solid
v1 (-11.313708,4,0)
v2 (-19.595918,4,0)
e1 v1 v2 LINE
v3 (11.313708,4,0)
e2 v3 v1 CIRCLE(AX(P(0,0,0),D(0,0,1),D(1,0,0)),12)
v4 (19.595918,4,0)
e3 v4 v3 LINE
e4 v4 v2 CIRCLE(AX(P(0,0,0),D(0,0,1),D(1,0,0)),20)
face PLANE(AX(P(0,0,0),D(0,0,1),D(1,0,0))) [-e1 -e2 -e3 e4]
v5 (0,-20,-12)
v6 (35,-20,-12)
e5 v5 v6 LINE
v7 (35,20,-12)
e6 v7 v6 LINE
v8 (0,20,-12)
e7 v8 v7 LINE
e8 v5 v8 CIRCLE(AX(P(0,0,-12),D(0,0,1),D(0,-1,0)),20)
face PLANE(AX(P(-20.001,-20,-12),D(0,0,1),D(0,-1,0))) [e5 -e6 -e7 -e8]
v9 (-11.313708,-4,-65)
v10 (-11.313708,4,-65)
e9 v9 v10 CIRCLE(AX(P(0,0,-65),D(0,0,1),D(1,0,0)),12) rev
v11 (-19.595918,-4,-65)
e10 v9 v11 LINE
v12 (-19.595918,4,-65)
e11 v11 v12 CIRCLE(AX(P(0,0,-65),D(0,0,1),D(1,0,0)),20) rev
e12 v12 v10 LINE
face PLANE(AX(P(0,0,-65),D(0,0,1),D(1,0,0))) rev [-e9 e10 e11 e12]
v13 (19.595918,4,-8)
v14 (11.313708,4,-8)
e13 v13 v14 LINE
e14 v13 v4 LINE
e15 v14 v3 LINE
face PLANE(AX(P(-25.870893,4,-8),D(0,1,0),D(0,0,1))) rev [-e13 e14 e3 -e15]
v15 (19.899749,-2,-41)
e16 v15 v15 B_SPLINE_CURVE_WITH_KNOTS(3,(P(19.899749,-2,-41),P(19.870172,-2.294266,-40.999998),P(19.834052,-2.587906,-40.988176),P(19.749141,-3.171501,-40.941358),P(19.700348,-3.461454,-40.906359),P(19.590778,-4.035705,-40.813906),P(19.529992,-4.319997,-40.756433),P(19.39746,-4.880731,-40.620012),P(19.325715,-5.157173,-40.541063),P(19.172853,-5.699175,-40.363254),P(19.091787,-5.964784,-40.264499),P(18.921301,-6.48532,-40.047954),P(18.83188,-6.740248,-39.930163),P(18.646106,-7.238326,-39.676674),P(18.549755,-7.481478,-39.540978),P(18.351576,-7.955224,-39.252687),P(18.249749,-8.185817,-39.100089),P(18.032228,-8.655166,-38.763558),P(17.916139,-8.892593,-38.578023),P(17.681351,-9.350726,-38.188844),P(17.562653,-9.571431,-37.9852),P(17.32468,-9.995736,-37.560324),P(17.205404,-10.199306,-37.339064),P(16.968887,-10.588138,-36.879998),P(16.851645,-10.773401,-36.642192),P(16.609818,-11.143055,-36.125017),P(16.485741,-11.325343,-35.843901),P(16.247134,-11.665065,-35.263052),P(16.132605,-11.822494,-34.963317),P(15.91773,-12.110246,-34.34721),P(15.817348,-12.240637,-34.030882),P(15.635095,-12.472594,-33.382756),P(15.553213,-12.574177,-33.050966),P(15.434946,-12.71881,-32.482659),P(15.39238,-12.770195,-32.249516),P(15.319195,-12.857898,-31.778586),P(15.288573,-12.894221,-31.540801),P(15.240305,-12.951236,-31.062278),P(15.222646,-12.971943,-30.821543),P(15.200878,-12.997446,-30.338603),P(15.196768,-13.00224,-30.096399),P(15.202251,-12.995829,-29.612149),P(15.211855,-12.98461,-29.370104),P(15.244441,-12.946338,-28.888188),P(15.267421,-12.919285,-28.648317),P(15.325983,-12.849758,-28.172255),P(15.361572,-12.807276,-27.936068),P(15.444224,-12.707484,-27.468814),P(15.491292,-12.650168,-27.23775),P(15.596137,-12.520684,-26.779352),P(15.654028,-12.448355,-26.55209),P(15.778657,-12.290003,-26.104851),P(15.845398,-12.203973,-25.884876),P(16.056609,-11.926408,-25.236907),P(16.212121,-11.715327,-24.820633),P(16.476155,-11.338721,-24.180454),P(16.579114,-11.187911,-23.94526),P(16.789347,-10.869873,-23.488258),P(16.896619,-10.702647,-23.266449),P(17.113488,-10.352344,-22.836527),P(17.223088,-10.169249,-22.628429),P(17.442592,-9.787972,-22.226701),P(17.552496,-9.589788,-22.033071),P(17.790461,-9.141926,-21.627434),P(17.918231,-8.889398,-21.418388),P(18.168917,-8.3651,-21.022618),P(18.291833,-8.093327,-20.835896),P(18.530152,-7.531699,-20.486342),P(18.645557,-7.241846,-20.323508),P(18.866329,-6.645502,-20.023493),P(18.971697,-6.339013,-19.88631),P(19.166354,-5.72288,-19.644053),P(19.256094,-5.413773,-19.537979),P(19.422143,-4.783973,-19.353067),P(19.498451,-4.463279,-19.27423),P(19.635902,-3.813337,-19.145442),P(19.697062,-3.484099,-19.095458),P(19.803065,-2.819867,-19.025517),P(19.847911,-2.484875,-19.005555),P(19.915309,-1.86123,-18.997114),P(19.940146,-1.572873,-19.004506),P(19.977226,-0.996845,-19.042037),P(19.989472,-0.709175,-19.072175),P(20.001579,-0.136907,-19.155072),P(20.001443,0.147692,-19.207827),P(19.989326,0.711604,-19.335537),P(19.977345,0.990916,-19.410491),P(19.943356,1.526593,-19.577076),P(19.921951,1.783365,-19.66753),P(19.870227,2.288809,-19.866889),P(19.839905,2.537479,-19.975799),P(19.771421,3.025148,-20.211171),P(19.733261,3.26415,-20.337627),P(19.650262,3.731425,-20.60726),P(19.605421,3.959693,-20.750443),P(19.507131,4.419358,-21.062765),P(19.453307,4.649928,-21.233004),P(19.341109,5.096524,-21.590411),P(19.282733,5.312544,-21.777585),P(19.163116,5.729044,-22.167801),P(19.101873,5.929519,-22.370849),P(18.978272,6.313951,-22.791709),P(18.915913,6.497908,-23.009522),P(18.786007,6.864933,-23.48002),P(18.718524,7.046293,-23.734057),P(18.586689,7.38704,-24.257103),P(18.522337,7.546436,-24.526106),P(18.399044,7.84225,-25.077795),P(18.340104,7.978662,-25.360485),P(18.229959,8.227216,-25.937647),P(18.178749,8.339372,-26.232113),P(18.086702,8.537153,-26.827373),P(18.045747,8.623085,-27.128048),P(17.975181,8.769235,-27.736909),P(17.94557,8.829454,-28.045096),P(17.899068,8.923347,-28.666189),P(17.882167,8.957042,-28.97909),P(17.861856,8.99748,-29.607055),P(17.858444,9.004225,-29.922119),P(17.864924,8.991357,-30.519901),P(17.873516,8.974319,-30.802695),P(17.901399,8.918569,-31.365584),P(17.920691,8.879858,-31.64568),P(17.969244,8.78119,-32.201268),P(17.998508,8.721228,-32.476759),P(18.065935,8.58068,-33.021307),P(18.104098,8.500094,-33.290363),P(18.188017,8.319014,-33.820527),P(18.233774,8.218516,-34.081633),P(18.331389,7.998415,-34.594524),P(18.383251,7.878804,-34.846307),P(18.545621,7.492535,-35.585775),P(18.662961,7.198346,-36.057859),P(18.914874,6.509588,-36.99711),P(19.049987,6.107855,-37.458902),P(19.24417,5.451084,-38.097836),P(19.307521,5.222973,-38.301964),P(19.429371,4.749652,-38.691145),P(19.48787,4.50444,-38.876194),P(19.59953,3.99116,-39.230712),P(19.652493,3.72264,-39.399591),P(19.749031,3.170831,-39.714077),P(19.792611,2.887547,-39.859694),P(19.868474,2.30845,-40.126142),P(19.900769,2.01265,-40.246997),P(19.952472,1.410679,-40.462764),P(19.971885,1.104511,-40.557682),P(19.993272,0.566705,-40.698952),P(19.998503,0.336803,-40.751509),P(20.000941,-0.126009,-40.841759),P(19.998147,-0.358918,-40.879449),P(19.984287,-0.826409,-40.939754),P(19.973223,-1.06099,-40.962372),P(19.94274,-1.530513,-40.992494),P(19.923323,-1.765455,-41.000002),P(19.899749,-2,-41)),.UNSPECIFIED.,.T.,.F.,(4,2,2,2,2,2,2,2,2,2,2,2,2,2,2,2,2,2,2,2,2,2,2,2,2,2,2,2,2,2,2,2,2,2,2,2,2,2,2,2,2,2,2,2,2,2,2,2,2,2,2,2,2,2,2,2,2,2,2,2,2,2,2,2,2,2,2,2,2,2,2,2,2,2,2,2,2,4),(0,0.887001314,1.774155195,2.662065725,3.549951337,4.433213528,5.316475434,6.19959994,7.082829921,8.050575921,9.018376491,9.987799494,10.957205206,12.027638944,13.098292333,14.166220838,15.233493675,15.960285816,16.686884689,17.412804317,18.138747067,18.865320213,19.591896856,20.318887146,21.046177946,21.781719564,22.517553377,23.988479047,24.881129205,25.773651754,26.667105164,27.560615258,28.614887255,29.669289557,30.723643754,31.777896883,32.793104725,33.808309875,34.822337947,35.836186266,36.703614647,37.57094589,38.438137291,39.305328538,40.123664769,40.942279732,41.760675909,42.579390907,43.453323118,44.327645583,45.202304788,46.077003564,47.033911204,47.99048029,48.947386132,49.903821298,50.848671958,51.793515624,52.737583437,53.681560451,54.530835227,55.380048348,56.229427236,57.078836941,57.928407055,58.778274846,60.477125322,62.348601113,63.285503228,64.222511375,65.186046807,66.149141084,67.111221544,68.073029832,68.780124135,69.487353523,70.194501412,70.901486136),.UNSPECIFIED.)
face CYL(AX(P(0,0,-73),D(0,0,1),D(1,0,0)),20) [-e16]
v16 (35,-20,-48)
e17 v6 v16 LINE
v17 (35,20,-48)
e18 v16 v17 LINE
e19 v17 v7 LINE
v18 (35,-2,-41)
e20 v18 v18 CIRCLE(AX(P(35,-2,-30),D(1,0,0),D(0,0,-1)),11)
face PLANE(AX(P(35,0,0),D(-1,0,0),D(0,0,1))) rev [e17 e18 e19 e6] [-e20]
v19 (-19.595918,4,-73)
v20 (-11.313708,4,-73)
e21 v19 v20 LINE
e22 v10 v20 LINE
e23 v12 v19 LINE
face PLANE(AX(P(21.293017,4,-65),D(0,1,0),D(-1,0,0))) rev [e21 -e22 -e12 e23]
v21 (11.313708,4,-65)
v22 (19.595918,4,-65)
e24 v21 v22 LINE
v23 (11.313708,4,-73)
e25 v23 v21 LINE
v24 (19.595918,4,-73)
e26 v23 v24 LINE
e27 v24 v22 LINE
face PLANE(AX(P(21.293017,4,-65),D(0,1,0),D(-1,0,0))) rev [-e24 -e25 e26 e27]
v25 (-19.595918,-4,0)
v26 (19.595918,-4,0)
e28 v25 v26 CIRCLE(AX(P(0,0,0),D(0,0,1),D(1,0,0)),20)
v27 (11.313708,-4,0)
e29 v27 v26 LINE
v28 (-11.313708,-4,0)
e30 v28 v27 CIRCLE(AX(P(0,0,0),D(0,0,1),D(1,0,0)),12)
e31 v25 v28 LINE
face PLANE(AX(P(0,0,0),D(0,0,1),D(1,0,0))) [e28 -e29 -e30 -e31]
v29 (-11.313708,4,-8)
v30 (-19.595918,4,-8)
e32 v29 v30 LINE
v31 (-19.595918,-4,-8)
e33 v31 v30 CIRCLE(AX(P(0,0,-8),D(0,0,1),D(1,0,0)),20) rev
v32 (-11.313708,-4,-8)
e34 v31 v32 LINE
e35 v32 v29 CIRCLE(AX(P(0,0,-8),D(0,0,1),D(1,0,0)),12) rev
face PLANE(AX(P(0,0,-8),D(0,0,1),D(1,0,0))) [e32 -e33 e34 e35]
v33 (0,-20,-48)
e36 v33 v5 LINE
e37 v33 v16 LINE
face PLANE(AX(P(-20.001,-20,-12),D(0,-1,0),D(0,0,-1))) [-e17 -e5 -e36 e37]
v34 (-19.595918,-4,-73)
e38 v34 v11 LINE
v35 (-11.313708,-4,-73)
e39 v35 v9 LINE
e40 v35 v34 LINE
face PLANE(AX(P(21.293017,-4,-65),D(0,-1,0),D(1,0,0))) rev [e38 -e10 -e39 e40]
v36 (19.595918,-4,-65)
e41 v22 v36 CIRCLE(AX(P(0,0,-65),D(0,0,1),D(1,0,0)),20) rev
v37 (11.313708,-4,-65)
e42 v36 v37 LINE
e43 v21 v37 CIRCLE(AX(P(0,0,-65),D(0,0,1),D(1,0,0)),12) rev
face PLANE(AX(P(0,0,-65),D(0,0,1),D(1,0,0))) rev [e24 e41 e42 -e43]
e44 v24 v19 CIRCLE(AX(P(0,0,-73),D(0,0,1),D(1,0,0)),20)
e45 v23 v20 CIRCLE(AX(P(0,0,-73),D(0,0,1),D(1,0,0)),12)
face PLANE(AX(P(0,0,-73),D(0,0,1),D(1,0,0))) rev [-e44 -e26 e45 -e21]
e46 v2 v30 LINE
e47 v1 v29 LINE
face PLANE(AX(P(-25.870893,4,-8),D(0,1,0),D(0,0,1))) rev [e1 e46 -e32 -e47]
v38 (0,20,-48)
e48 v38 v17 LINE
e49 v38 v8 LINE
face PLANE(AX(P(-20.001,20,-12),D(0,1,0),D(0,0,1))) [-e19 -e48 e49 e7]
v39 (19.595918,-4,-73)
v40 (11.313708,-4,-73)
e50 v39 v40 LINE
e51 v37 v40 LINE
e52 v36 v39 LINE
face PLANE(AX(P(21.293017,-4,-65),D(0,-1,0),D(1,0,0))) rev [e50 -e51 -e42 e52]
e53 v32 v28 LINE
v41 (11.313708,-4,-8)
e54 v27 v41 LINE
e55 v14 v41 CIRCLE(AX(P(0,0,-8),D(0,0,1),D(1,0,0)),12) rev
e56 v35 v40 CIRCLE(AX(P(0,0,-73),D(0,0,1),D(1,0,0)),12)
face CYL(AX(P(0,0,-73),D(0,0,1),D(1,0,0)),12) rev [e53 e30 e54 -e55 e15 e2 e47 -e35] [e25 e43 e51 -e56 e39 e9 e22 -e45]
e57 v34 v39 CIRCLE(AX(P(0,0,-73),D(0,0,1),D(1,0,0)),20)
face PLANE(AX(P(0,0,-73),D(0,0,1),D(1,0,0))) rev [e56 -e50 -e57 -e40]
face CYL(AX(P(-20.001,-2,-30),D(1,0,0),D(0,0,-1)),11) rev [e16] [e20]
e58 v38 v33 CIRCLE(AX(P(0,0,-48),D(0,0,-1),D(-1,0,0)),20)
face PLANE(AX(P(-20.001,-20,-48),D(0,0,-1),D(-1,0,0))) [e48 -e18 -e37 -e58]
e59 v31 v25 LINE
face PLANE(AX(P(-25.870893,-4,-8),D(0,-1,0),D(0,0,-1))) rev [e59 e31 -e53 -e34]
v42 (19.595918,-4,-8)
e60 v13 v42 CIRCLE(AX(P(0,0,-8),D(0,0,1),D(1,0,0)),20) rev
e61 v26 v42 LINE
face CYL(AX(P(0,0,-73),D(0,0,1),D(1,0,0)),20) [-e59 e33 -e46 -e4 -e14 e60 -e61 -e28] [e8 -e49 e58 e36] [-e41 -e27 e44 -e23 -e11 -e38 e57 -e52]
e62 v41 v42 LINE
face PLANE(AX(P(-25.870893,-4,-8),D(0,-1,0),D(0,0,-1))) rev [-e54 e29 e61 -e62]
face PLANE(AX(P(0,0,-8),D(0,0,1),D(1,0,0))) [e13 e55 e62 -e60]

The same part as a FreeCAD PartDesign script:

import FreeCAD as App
import Part
import Sketcher
from FreeCAD import Vector

doc = App.newDocument("Part")
params = doc.addObject("Spreadsheet::Sheet", "Params")
for row, (alias, value) in enumerate([
    ("sketch1_diameter", "40 mm"),
    ("sketch1_diameter2", "24 mm"),
    ("pad1_length", "73 mm"),
    ("sketch2_diameter", "22 mm"),
    ("sketch2_width", "40 mm"),
    ("sketch2_height", "36 mm"),
    ("sketch3_height", "8 mm"),
    ("pocket1_length", "8 mm"),
    ("sketch4_height", "8 mm"),
    ("pocket2_length", "8 mm"),
], start=1):
    params.set(f"A{row}", alias)
    params.set(f"B{row}", "=" + value)
    params.setAlias(f"B{row}", alias)

body = doc.addObject("PartDesign::Body", "Body")

sketch1 = body.newObject("Sketcher::SketchObject", "Sketch")
sketch1.AttachmentSupport = (doc.getObject("XY_Plane"), [""])
sketch1.MapMode = "FlatFace"
sketch1.addGeometry(Part.Circle(Vector(0, 0, 0), Vector(0, 0, 1), 20), False)
sketch1.addGeometry(Part.Circle(Vector(0, 0, 0), Vector(0, 0, 1), 12), False)
sketch1.addConstraint(Sketcher.Constraint("Coincident", 0, 3, -1, 1))
sketch1.addConstraint(Sketcher.Constraint("Coincident", 1, 3, -1, 1))
sketch1.addConstraint(Sketcher.Constraint("Diameter", 0, 40.0))
sketch1.addConstraint(Sketcher.Constraint("Diameter", 1, 24.0))
sketch1.setExpression("Constraints[2]", "Params.sketch1_diameter")
sketch1.setExpression("Constraints[3]", "Params.sketch1_diameter2")
pad1 = body.newObject("PartDesign::Pad", "Pad")
pad1.Profile = sketch1
pad1.setExpression("Length", "Params.pad1_length")
pad1.Reversed = True

sketch2 = body.newObject("Sketcher::SketchObject", "Sketch001")
sketch2.AttachmentSupport = (doc.getObject("YZ_Plane"), [""])
sketch2.MapMode = "FlatFace"
sketch2.AttachmentOffset = App.Placement(Vector(0, 0, 35), App.Rotation())
sketch2.addGeometry(Part.LineSegment(Vector(20, -12, 0), Vector(-20, -12, 0)), False)
sketch2.addGeometry(Part.LineSegment(Vector(-20, -12, 0), Vector(-20, -48, 0)), False)
sketch2.addGeometry(Part.LineSegment(Vector(-20, -48, 0), Vector(20, -48, 0)), False)
sketch2.addGeometry(Part.LineSegment(Vector(20, -48, 0), Vector(20, -12, 0)), False)
sketch2.addGeometry(Part.Circle(Vector(-2, -30, 0), Vector(0, 0, 1), 11), False)
sketch2.addConstraint(Sketcher.Constraint("Coincident", 0, 2, 1, 1))
sketch2.addConstraint(Sketcher.Constraint("Coincident", 1, 2, 2, 1))
sketch2.addConstraint(Sketcher.Constraint("Coincident", 2, 2, 3, 1))
sketch2.addConstraint(Sketcher.Constraint("Coincident", 3, 2, 0, 1))
sketch2.addConstraint(Sketcher.Constraint("Horizontal", 0))
sketch2.addConstraint(Sketcher.Constraint("Vertical", 1))
sketch2.addConstraint(Sketcher.Constraint("Horizontal", 2))
sketch2.addConstraint(Sketcher.Constraint("Vertical", 3))
sketch2.addConstraint(Sketcher.Constraint("Diameter", 4, 22.0))
sketch2.addConstraint(Sketcher.Constraint("DistanceX", 0, 2, 0, 1, 40.0))
sketch2.addConstraint(Sketcher.Constraint("DistanceY", 1, 2, 1, 1, 36.0))
sketch2.addConstraint(Sketcher.Constraint("DistanceX", 4, 3, -1, 1, 2.0))
sketch2.addConstraint(Sketcher.Constraint("DistanceY", 4, 3, -1, 1, 30.0))
sketch2.addConstraint(Sketcher.Constraint("DistanceX", 0, 2, -1, 1, 20.0))
sketch2.addConstraint(Sketcher.Constraint("DistanceY", 0, 2, -1, 1, 12.0))
sketch2.setExpression("Constraints[8]", "Params.sketch2_diameter")
sketch2.setExpression("Constraints[9]", "Params.sketch2_width")
sketch2.setExpression("Constraints[10]", "Params.sketch2_height")
pad2 = body.newObject("PartDesign::Pad", "Pad001")
pad2.Profile = sketch2
pad2.Type = "UpToFirst"
pad2.Reversed = True

sketch3 = body.newObject("Sketcher::SketchObject", "Sketch002")
sketch3.AttachmentSupport = (doc.getObject("XY_Plane"), [""])
sketch3.MapMode = "FlatFace"
sketch3.addGeometry(Part.LineSegment(Vector(-26, 4, 0), Vector(-26, -4, 0)), False)
sketch3.addGeometry(Part.LineSegment(Vector(-26, -4, 0), Vector(22, -4, 0)), False)
sketch3.addGeometry(Part.LineSegment(Vector(22, -4, 0), Vector(22, 4, 0)), False)
sketch3.addGeometry(Part.LineSegment(Vector(22, 4, 0), Vector(-26, 4, 0)), False)
sketch3.addConstraint(Sketcher.Constraint("Coincident", 0, 2, 1, 1))
sketch3.addConstraint(Sketcher.Constraint("Coincident", 1, 2, 2, 1))
sketch3.addConstraint(Sketcher.Constraint("Coincident", 2, 2, 3, 1))
sketch3.addConstraint(Sketcher.Constraint("Coincident", 3, 2, 0, 1))
sketch3.addConstraint(Sketcher.Constraint("Vertical", 0))
sketch3.addConstraint(Sketcher.Constraint("Horizontal", 1))
sketch3.addConstraint(Sketcher.Constraint("Vertical", 2))
sketch3.addConstraint(Sketcher.Constraint("Horizontal", 3))
sketch3.addConstraint(Sketcher.Constraint("DistanceY", 0, 2, 0, 1, 8.0))
sketch3.addConstraint(Sketcher.Constraint("DistanceY", 0, 2, -1, 1, 4.0))
sketch3.addConstraint(Sketcher.Constraint("DistanceX", 1, 1, 1, 2, 48.323473))
sketch3.addConstraint(Sketcher.Constraint("DistanceX", -1, 1, 1, 2, 22.452579))
sketch3.setExpression("Constraints[8]", "Params.sketch3_height")
pocket1 = body.newObject("PartDesign::Pocket", "Pocket")
pocket1.Profile = sketch3
pocket1.setExpression("Length", "Params.pocket1_length")

sketch4 = body.newObject("Sketcher::SketchObject", "Sketch003")
sketch4.AttachmentSupport = (doc.getObject("XY_Plane"), [""])
sketch4.MapMode = "FlatFace"
sketch4.AttachmentOffset = App.Placement(Vector(0, 0, -73), App.Rotation())
sketch4.addGeometry(Part.LineSegment(Vector(21, 4, 0), Vector(21, -4, 0)), False)
sketch4.addGeometry(Part.LineSegment(Vector(21, -4, 0), Vector(-21, -4, 0)), False)
sketch4.addGeometry(Part.LineSegment(Vector(-21, -4, 0), Vector(-21, 4, 0)), False)
sketch4.addGeometry(Part.LineSegment(Vector(-21, 4, 0), Vector(21, 4, 0)), False)
sketch4.addConstraint(Sketcher.Constraint("Coincident", 0, 2, 1, 1))
sketch4.addConstraint(Sketcher.Constraint("Coincident", 1, 2, 2, 1))
sketch4.addConstraint(Sketcher.Constraint("Coincident", 2, 2, 3, 1))
sketch4.addConstraint(Sketcher.Constraint("Coincident", 3, 2, 0, 1))
sketch4.addConstraint(Sketcher.Constraint("Vertical", 0))
sketch4.addConstraint(Sketcher.Constraint("Horizontal", 1))
sketch4.addConstraint(Sketcher.Constraint("Vertical", 2))
sketch4.addConstraint(Sketcher.Constraint("Horizontal", 3))
sketch4.addConstraint(Sketcher.Constraint("Symmetric", 0, 2, 2, 2, -1, 1))
sketch4.addConstraint(Sketcher.Constraint("DistanceY", 0, 2, 0, 1, 8.0))
sketch4.addConstraint(Sketcher.Constraint("DistanceX", 1, 2, 1, 1, 42.586033))
sketch4.setExpression("Constraints[9]", "Params.sketch4_height")
pocket2 = body.newObject("PartDesign::Pocket", "Pocket001")
pocket2.Profile = sketch4
pocket2.setExpression("Length", "Params.pocket2_length")
pocket2.Reversed = True

doc.recompute()
